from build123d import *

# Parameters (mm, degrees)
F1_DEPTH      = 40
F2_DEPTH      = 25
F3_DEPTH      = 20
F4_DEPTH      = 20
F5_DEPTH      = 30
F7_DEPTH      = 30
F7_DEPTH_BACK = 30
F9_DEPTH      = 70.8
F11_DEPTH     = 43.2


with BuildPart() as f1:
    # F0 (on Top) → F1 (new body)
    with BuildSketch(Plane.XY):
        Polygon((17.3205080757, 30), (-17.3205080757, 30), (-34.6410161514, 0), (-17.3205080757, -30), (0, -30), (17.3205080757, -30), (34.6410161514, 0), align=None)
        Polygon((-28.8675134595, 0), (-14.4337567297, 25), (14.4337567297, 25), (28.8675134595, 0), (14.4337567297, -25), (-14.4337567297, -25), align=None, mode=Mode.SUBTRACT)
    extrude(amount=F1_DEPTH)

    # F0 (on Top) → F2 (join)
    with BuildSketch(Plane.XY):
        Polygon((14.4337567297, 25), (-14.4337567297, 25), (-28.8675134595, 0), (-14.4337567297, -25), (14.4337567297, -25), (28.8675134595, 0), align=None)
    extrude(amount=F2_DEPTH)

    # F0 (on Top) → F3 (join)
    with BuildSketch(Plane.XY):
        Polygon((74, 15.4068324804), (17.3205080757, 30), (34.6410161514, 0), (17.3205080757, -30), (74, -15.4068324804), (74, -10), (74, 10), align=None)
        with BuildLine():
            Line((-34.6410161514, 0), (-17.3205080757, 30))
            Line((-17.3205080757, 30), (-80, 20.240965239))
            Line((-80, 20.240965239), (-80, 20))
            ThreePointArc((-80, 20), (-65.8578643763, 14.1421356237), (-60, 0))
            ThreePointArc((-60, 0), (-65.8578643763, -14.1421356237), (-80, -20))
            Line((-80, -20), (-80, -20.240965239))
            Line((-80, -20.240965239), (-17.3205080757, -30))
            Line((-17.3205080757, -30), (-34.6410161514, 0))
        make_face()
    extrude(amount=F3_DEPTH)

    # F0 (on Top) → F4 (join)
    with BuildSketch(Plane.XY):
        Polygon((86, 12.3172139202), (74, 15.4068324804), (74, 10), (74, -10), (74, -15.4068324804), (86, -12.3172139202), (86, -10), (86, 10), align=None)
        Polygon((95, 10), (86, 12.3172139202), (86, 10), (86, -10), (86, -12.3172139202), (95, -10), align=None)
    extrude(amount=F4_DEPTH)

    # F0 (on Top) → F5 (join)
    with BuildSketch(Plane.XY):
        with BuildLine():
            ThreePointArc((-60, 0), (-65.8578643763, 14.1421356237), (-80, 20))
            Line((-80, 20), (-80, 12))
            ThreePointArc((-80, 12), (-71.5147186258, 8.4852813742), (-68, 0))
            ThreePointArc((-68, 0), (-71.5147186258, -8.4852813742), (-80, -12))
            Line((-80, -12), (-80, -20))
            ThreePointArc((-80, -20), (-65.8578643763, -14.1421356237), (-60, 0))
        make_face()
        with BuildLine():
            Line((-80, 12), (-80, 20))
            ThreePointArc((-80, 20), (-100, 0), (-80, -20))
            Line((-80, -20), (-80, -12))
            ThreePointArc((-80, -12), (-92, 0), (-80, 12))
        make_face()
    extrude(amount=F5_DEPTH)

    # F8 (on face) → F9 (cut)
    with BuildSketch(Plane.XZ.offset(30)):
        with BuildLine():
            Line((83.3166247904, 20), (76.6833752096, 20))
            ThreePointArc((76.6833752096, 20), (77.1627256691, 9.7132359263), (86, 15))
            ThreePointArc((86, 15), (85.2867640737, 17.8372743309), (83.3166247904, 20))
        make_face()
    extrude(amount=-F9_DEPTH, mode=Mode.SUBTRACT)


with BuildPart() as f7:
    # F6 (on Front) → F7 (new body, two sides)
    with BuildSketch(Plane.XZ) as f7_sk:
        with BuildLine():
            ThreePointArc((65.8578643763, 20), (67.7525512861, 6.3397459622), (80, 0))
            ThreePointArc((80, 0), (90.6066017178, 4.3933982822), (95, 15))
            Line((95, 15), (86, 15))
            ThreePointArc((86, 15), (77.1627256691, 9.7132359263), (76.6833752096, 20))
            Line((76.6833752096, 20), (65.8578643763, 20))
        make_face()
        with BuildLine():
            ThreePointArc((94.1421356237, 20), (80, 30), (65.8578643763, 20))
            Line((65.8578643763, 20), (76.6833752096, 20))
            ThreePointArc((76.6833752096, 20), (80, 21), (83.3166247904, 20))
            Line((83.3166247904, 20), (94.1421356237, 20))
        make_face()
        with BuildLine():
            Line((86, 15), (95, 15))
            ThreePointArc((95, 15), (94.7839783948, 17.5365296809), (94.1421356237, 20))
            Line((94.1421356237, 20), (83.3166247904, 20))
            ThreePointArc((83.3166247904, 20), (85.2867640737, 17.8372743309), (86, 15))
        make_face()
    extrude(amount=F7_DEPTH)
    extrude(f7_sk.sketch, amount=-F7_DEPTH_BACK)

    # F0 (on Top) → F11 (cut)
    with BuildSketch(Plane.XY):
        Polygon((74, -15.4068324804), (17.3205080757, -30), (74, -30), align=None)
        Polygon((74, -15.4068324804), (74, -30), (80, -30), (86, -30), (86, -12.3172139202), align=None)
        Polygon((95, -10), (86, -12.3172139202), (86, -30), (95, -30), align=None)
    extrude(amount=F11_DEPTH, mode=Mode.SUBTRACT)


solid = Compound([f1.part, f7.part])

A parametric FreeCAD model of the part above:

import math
import FreeCAD as App
import Part
import Sketcher

V = App.Vector
Q = App.Units.Quantity


def add_polygon(sketch, points):
    """Adds a closed chain of lines whose ends are joined by coincident constraints."""
    first, n = sketch.GeometryCount, len(points)
    for a, b in zip(points, points[1:] + points[:1]):
        sketch.addGeometry(Part.LineSegment(App.Vector(*a, 0), App.Vector(*b, 0)), False)
    for i in range(n):
        sketch.addConstraint(Sketcher.Constraint("Coincident", first + i, 2, first + (i + 1) % n, 1))

doc = App.newDocument("Part")
body = doc.addObject("PartDesign::Body", "Body")

# Sketch on XY plane
sketch1 = doc.addObject("Sketcher::SketchObject", "Sketch")
body.addObject(sketch1)
sketch1.AttachmentSupport = (doc.XY_Plane, [""])
sketch1.MapMode = "FlatFace"
add_polygon(sketch1, [(17.320508, 30), (-17.320508, 30), (-34.641016, 0), (-17.320508, -30), (17.320508, -30), (34.641016, 0)])  # lines 0-5
add_polygon(sketch1, [(-14.433757, -25), (-28.867513, 0), (-14.433757, 25), (14.433757, 25), (28.867513, 0), (14.433757, -25)])  # lines 6-11
sketch1.addConstraint(Sketcher.Constraint("Horizontal", 0))
sketch1.addConstraint(Sketcher.Constraint("Horizontal", 3))
sketch1.addConstraint(Sketcher.Constraint("Horizontal", 8))
sketch1.addConstraint(Sketcher.Constraint("Horizontal", 11))
sketch1.addConstraint(Sketcher.Constraint("Symmetric", 0, 2, 3, 2, -1, 1))
sketch1.addConstraint(Sketcher.Constraint("Symmetric", 1, 2, 4, 2, -1, 1))
sketch1.addConstraint(Sketcher.Constraint("Symmetric", 6, 2, 9, 2, -1, 1))
sketch1.addConstraint(Sketcher.Constraint("Symmetric", 7, 2, 10, 2, -1, 1))
sketch1.addConstraint(Sketcher.Constraint("PointOnObject", 1, 2, -1))
sketch1.addConstraint(Sketcher.Constraint("PointOnObject", 6, 2, -1))
sketch1.addConstraint(Sketcher.Constraint("Parallel", 2, 5))
sketch1.addConstraint(Sketcher.Constraint("Parallel", 5, 6))
sketch1.addConstraint(Sketcher.Constraint("Parallel", 4, 7))
sketch1.addConstraint(Sketcher.Constraint("Parallel", 6, 9))
sketch1.addConstraint(Sketcher.Constraint("Vertical", 0, 2, 2, 2))
sketch1.addConstraint(Sketcher.Constraint("Angle", 1, Q("-120 deg")))
sketch1.addConstraint(Sketcher.Constraint("DistanceY", -1, 1, 0, 2, Q("30 mm")))
sketch1.addConstraint(Sketcher.Constraint("DistanceY", -1, 1, 7, 2, Q("25 mm")))
sketch1.addConstraint(Sketcher.Constraint("DistanceX", 0, 2, 0, 1, Q("34.641016 mm")))
sketch1.addConstraint(Sketcher.Constraint("DistanceX", 8, 1, 8, 2, Q("28.867513 mm")))
pad1 = doc.addObject("PartDesign::Pad", "Pad")
body.addObject(pad1)
pad1.Profile = sketch1
pad1.Length = 40

# Sketch on XY plane
sketch2 = doc.addObject("Sketcher::SketchObject", "Sketch001")
body.addObject(sketch2)
sketch2.AttachmentSupport = (doc.XY_Plane, [""])
sketch2.MapMode = "FlatFace"
add_polygon(sketch2, [(14.433757, 25), (-14.433757, 25), (-28.867513, 0), (-14.433757, -25), (14.433757, -25), (28.867513, 0)])  # lines 0-5
sketch2.addConstraint(Sketcher.Constraint("Horizontal", 0))
sketch2.addConstraint(Sketcher.Constraint("Horizontal", 3))
sketch2.addConstraint(Sketcher.Constraint("Symmetric", 0, 2, 3, 2, -1, 1))
sketch2.addConstraint(Sketcher.Constraint("Symmetric", 1, 2, 4, 2, -1, 1))
sketch2.addConstraint(Sketcher.Constraint("PointOnObject", 1, 2, -1))
sketch2.addConstraint(Sketcher.Constraint("Parallel", 2, 5))
sketch2.addConstraint(Sketcher.Constraint("Vertical", 0, 2, 2, 2))
sketch2.addConstraint(Sketcher.Constraint("Angle", 1, Q("-120 deg")))
sketch2.addConstraint(Sketcher.Constraint("DistanceY", -1, 1, 0, 2, Q("25 mm")))
sketch2.addConstraint(Sketcher.Constraint("DistanceX", 0, 2, 0, 1, Q("28.867513 mm")))
pad2 = doc.addObject("PartDesign::Pad", "Pad001")
body.addObject(pad2)
pad2.Profile = sketch2
pad2.Length = 25

# Sketch on XY plane
sketch3 = doc.addObject("Sketcher::SketchObject", "Sketch002")
body.addObject(sketch3)
sketch3.AttachmentSupport = (doc.XY_Plane, [""])
sketch3.MapMode = "FlatFace"
add_polygon(sketch3, [(74, 15.406832), (17.320508, 30), (34.641016, 0), (17.320508, -30), (74, -15.406832)])  # lines 0-4
sketch3.addGeometry(Part.LineSegment(V(-34.641016, 0, 0), V(-17.320508, 30, 0)), False)  # 5
sketch3.addGeometry(Part.LineSegment(V(-17.320508, 30, 0), V(-80, 20.240965, 0)), False)  # 6
sketch3.addGeometry(Part.LineSegment(V(-80, 20.240965, 0), V(-80, 20, 0)), False)  # 7
sketch3.addGeometry(Part.ArcOfCircle(Part.Circle(V(-80, 0, 0), V(0, 0, 1), 20), math.radians(0), math.radians(90)), False)  # 8
sketch3.addGeometry(Part.ArcOfCircle(Part.Circle(V(-80, 0, 0), V(0, 0, 1), 20), math.radians(-90), math.radians(0)), False)  # 9
sketch3.addGeometry(Part.LineSegment(V(-80, -20, 0), V(-80, -20.240965, 0)), False)  # 10
sketch3.addGeometry(Part.LineSegment(V(-80, -20.240965, 0), V(-17.320508, -30, 0)), False)  # 11
sketch3.addGeometry(Part.LineSegment(V(-17.320508, -30, 0), V(-34.641016, 0, 0)), False)  # 12
sketch3.addConstraint(Sketcher.Constraint("Coincident", 5, 2, 6, 1))
sketch3.addConstraint(Sketcher.Constraint("Coincident", 6, 2, 7, 1))
sketch3.addConstraint(Sketcher.Constraint("Coincident", 7, 2, 8, 2))
sketch3.addConstraint(Sketcher.Constraint("Tangent", 8, 1, 9, 2))
sketch3.addConstraint(Sketcher.Constraint("Coincident", 9, 1, 10, 1))
sketch3.addConstraint(Sketcher.Constraint("Coincident", 10, 2, 11, 1))
sketch3.addConstraint(Sketcher.Constraint("Coincident", 11, 2, 12, 1))
sketch3.addConstraint(Sketcher.Constraint("Coincident", 12, 2, 5, 1))
sketch3.addConstraint(Sketcher.Constraint("Vertical", 4))
sketch3.addConstraint(Sketcher.Constraint("Vertical", 7))
sketch3.addConstraint(Sketcher.Constraint("Vertical", 10))
sketch3.addConstraint(Sketcher.Constraint("Equal", 8, 9))
sketch3.addConstraint(Sketcher.Constraint("Symmetric", 2, 2, 5, 2, -1, 1))
sketch3.addConstraint(Sketcher.Constraint("Symmetric", 0, 2, 11, 2, -1, 1))
sketch3.addConstraint(Sketcher.Constraint("Symmetric", 1, 2, 12, 2, -1, 1))
sketch3.addConstraint(Sketcher.Constraint("Symmetric", 0, 2, 5, 2, -2))
sketch3.addConstraint(Sketcher.Constraint("Symmetric", 7, 2, 9, 1, -1))
sketch3.addConstraint(Sketcher.Constraint("PointOnObject", 1, 2, -1))
sketch3.addConstraint(Sketcher.Constraint("PointOnObject", 8, 1, -1))
sketch3.addConstraint(Sketcher.Constraint("Vertical", 9, 3, 6, 2))
sketch3.addConstraint(Sketcher.Constraint("Equal", 7, 10))
sketch3.addConstraint(Sketcher.Constraint("Equal", 0, 3))
sketch3.addConstraint(Sketcher.Constraint("Radius", 8, Q("20 mm")))
sketch3.addConstraint(Sketcher.Constraint("Angle", 1, Q("-60 deg")))
sketch3.addConstraint(Sketcher.Constraint("DistanceX", 8, 3, -1, 1, Q("80 mm")))
sketch3.addConstraint(Sketcher.Constraint("DistanceY", -1, 1, 0, 2, Q("30 mm")))
sketch3.addConstraint(Sketcher.Constraint("DistanceX", -1, 1, 3, 2, Q("74 mm")))
sketch3.addConstraint(Sketcher.Constraint("Distance", 6, Q("63.434671 mm")))
sketch3.addConstraint(Sketcher.Constraint("DistanceY", 4, 1, 4, 2, Q("30.813665 mm")))
sketch3.addConstraint(Sketcher.Constraint("DistanceY", 7, 2, 7, 1, Q("0.240965 mm")))
pad3 = doc.addObject("PartDesign::Pad", "Pad002")
body.addObject(pad3)
pad3.Profile = sketch3
pad3.Length = 20

# Sketch on XY plane
sketch4 = doc.addObject("Sketcher::SketchObject", "Sketch003")
body.addObject(sketch4)
sketch4.AttachmentSupport = (doc.XY_Plane, [""])
sketch4.MapMode = "FlatFace"
add_polygon(sketch4, [(86, 12.317214), (74, 15.406832), (74, -15.406832), (86, -12.317214), (95, -10), (95, 10)])  # lines 0-5
sketch4.addConstraint(Sketcher.Constraint("Vertical", 1))
sketch4.addConstraint(Sketcher.Constraint("Vertical", 4))
sketch4.addConstraint(Sketcher.Constraint("Symmetric", 2, 2, 5, 2, -1))
sketch4.addConstraint(Sketcher.Constraint("Parallel", 2, 3))
sketch4.addConstraint(Sketcher.Constraint("Parallel", 0, 5))
sketch4.addConstraint(Sketcher.Constraint("Equal", 0, 2))
sketch4.addConstraint(Sketcher.Constraint("DistanceY", 4, 1, 4, 2, Q("20 mm")))
sketch4.addConstraint(Sketcher.Constraint("DistanceX", -1, 1, 0, 2, Q("74 mm")))
sketch4.addConstraint(Sketcher.Constraint("DistanceX", -1, 1, 2, 2, Q("86 mm")))
sketch4.addConstraint(Sketcher.Constraint("DistanceX", -1, 1, 3, 2, Q("95 mm")))
sketch4.addConstraint(Sketcher.Constraint("Distance", 3, Q("9.293518 mm")))
pad4 = doc.addObject("PartDesign::Pad", "Pad003")
body.addObject(pad4)
pad4.Profile = sketch4
pad4.Length = 20

# Sketch on XY plane
sketch5 = doc.addObject("Sketcher::SketchObject", "Sketch004")
body.addObject(sketch5)
sketch5.AttachmentSupport = (doc.XY_Plane, [""])
sketch5.MapMode = "FlatFace"
sketch5.addGeometry(Part.ArcOfCircle(Part.Circle(V(-80, 0, 0), V(0, 0, 1), 20), math.radians(0), math.radians(90)), False)
sketch5.addGeometry(Part.ArcOfCircle(Part.Circle(V(-80, 0, 0), V(0, 0, 1), 20), math.radians(90), math.radians(270)), False)
sketch5.addGeometry(Part.ArcOfCircle(Part.Circle(V(-80, 0, 0), V(0, 0, 1), 20), math.radians(-90), math.radians(0)), False)
sketch5.addGeometry(Part.ArcOfCircle(Part.Circle(V(-80, 0, 0), V(0, 0, 1), 12), math.radians(0), math.radians(90)), False)
sketch5.addGeometry(Part.ArcOfCircle(Part.Circle(V(-80, 0, 0), V(0, 0, 1), 12), math.radians(-90), math.radians(0)), False)
sketch5.addGeometry(Part.ArcOfCircle(Part.Circle(V(-80, 0, 0), V(0, 0, 1), 12), math.radians(90), math.radians(270)), False)
sketch5.addConstraint(Sketcher.Constraint("Tangent", 0, 2, 1, 1))
sketch5.addConstraint(Sketcher.Constraint("Tangent", 1, 2, 2, 1))
sketch5.addConstraint(Sketcher.Constraint("Tangent", 2, 2, 0, 1))
sketch5.addConstraint(Sketcher.Constraint("Tangent", 3, 1, 4, 2))
sketch5.addConstraint(Sketcher.Constraint("Tangent", 4, 1, 5, 2))
sketch5.addConstraint(Sketcher.Constraint("Tangent", 5, 1, 3, 2))
sketch5.addConstraint(Sketcher.Constraint("Coincident", 3, 3, 0, 3))
sketch5.addConstraint(Sketcher.Constraint("Symmetric", 0, 2, 1, 2, -1))
sketch5.addConstraint(Sketcher.Constraint("PointOnObject", 2, 2, -1))
sketch5.addConstraint(Sketcher.Constraint("PointOnObject", 3, 1, -1))
sketch5.addConstraint(Sketcher.Constraint("Vertical", 5, 3, 0, 2))
sketch5.addConstraint(Sketcher.Constraint("Vertical", 1, 2, 4, 1))
sketch5.addConstraint(Sketcher.Constraint("Vertical", 4, 1, 5, 1))
sketch5.addConstraint(Sketcher.Constraint("Radius", 0, Q("20 mm")))
sketch5.addConstraint(Sketcher.Constraint("Radius", 3, Q("12 mm")))
sketch5.addConstraint(Sketcher.Constraint("DistanceX", 0, 3, -1, 1, Q("80 mm")))
pad5 = doc.addObject("PartDesign::Pad", "Pad004")
body.addObject(pad5)
pad5.Profile = sketch5
pad5.Length = 30

# Sketch on XZ plane
sketch6 = doc.addObject("Sketcher::SketchObject", "Sketch005")
body.addObject(sketch6)
sketch6.AttachmentSupport = (doc.XZ_Plane, [""])
sketch6.MapMode = "FlatFace"
sketch6.AttachmentOffset = App.Placement(V(0, 0, 30), App.Rotation())
sketch6.addGeometry(Part.LineSegment(V(83.316625, 20, 0), V(76.683375, 20, 0)), False)
sketch6.addGeometry(Part.ArcOfCircle(Part.Circle(V(80, 15, 0), V(0, 0, 1), 6), math.radians(123.55731), math.radians(360)), False)
sketch6.addGeometry(Part.ArcOfCircle(Part.Circle(V(80, 15, 0), V(0, 0, 1), 6), math.radians(0), math.radians(56.44269)), False)
sketch6.addConstraint(Sketcher.Constraint("Coincident", 0, 2, 1, 1))
sketch6.addConstraint(Sketcher.Constraint("Tangent", 1, 2, 2, 1))
sketch6.addConstraint(Sketcher.Constraint("Coincident", 2, 2, 0, 1))
sketch6.addConstraint(Sketcher.Constraint("Horizontal", 0))
sketch6.addConstraint(Sketcher.Constraint("Equal", 1, 2))
sketch6.addConstraint(Sketcher.Constraint("Horizontal", 2, 3, 1, 2))
sketch6.addConstraint(Sketcher.Constraint("Radius", 1, Q("6 mm")))
sketch6.addConstraint(Sketcher.Constraint("DistanceX", -1, 1, 1, 3, Q("80 mm")))
sketch6.addConstraint(Sketcher.Constraint("DistanceY", -1, 1, 1, 3, Q("15 mm")))
sketch6.addConstraint(Sketcher.Constraint("DistanceY", -1, 1, 0, 2, Q("20 mm")))
pocket1 = doc.addObject("PartDesign::Pocket", "Pocket")
body.addObject(pocket1)
pocket1.Profile = sketch6
pocket1.Length = 70.8
body2 = doc.addObject("PartDesign::Body", "Body001")

# Sketch on XZ plane
sketch7 = doc.addObject("Sketcher::SketchObject", "Sketch006")
body2.addObject(sketch7)
sketch7.AttachmentSupport = (doc.getObject("XZ_Plane001"), [""])
sketch7.MapMode = "FlatFace"
sketch7.addGeometry(Part.ArcOfCircle(Part.Circle(V(80, 15, 0), V(0, 0, 1), 15), math.radians(0), math.radians(19.471221)), False)
sketch7.addGeometry(Part.ArcOfCircle(Part.Circle(V(80, 15, 0), V(0, 0, 1), 15), math.radians(19.471221), math.radians(360)), False)
sketch7.addGeometry(Part.ArcOfCircle(Part.Circle(V(80, 15, 0), V(0, 0, 1), 6), math.radians(123.55731), math.radians(360)), False)
sketch7.addGeometry(Part.ArcOfCircle(Part.Circle(V(80, 15, 0), V(0, 0, 1), 6), math.radians(56.44269), math.radians(123.55731)), False)
sketch7.addGeometry(Part.ArcOfCircle(Part.Circle(V(80, 15, 0), V(0, 0, 1), 6), math.radians(0), math.radians(56.44269)), False)
sketch7.addConstraint(Sketcher.Constraint("Tangent", 0, 1, 1, 2))
sketch7.addConstraint(Sketcher.Constraint("Coincident", 1, 1, 0, 2))
sketch7.addConstraint(Sketcher.Constraint("Tangent", 2, 1, 3, 2))
sketch7.addConstraint(Sketcher.Constraint("Tangent", 3, 1, 4, 2))
sketch7.addConstraint(Sketcher.Constraint("Tangent", 4, 1, 2, 2))
sketch7.addConstraint(Sketcher.Constraint("Coincident", 2, 3, 0, 3))
sketch7.addConstraint(Sketcher.Constraint("Horizontal", 4, 3, 0, 1))
sketch7.addConstraint(Sketcher.Constraint("Horizontal", 1, 1, 2, 1))
sketch7.addConstraint(Sketcher.Constraint("Horizontal", 2, 1, 3, 1))
sketch7.addConstraint(Sketcher.Constraint("Horizontal", 0, 1, 4, 1))
sketch7.addConstraint(Sketcher.Constraint("Radius", 0, Q("15 mm")))
sketch7.addConstraint(Sketcher.Constraint("Radius", 2, Q("6 mm")))
sketch7.addConstraint(Sketcher.Constraint("DistanceX", -1, 1, 0, 3, Q("80 mm")))
sketch7.addConstraint(Sketcher.Constraint("DistanceY", -1, 1, 0, 3, Q("15 mm")))
sketch7.addConstraint(Sketcher.Constraint("DistanceY", -1, 1, 1, 1, Q("20 mm")))
pad6 = doc.addObject("PartDesign::Pad", "Pad005")
body2.addObject(pad6)
pad6.Profile = sketch7
pad6.Type = "TwoLengths"
pad6.Length = 30
pad6.Length2 = 30

# Sketch on XY plane
sketch8 = doc.addObject("Sketcher::SketchObject", "Sketch007")
body2.addObject(sketch8)
sketch8.AttachmentSupport = (doc.getObject("XY_Plane001"), [""])
sketch8.MapMode = "FlatFace"
add_polygon(sketch8, [(74, -15.406832), (17.320508, -30), (95, -30), (95, -10), (86, -12.317214)])  # lines 0-4
sketch8.addConstraint(Sketcher.Constraint("Horizontal", 1))
sketch8.addConstraint(Sketcher.Constraint("Vertical", 2))
sketch8.addConstraint(Sketcher.Constraint("Parallel", 0, 3))
sketch8.addConstraint(Sketcher.Constraint("Parallel", 3, 4))
sketch8.addConstraint(Sketcher.Constraint("DistanceY", 2, 1, 2, 2, Q("20 mm")))
sketch8.addConstraint(Sketcher.Constraint("DistanceY", 0, 2, -1, 1, Q("30 mm")))
sketch8.addConstraint(Sketcher.Constraint("DistanceX", -1, 1, 1, 2, Q("95 mm")))
sketch8.addConstraint(Sketcher.Constraint("DistanceX", -1, 1, 3, 2, Q("86 mm")))
sketch8.addConstraint(Sketcher.Constraint("DistanceX", -1, 1, 4, 2, Q("74 mm")))
sketch8.addConstraint(Sketcher.Constraint("DistanceX", 1, 1, 1, 2, Q("77.679492 mm")))
pocket2 = doc.addObject("PartDesign::Pocket", "Pocket001")
body2.addObject(pocket2)
pocket2.Profile = sketch8
pocket2.Length = 43.2
pocket2.Reversed = True

doc.recompute()
